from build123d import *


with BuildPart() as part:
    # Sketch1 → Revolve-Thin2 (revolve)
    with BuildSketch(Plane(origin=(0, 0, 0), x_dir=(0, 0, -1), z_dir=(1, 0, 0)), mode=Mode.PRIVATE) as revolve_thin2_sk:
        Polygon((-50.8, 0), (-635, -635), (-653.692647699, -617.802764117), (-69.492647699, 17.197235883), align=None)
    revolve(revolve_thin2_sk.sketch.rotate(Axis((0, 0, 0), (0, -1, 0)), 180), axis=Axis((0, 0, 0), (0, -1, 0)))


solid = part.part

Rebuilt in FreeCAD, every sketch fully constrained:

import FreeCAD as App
import Part
import Sketcher
Q = App.Units.Quantity


def add_polygon(sketch, points):
    """Adds a closed chain of lines whose ends are joined by coincident constraints."""
    first, n = sketch.GeometryCount, len(points)
    for a, b in zip(points, points[1:] + points[:1]):
        sketch.addGeometry(Part.LineSegment(App.Vector(*a, 0), App.Vector(*b, 0)), False)
    for i in range(n):
        sketch.addConstraint(Sketcher.Constraint("Coincident", first + i, 2, first + (i + 1) % n, 1))

doc = App.newDocument("Part")
body = doc.addObject("PartDesign::Body", "Body")

sketch1 = doc.addObject("Sketcher::SketchObject", "Sketch")
body.addObject(sketch1)
sketch1.AttachmentSupport = (doc.YZ_Plane, [""])
sketch1.MapMode = "FlatFace"
add_polygon(sketch1, [(-635, 635), (0, 50.8), (17.197236, 69.492648), (-617.802764, 653.692648)])
sketch1.addConstraint([
    Sketcher.Constraint("PointOnObject", 0, 2, -2),
    Sketcher.Constraint("Perpendicular", 0, 1),
    Sketcher.Constraint("Perpendicular", 1, 2),
    Sketcher.Constraint("Perpendicular", 2, 3),
    Sketcher.Constraint("Distance", 1, Q("1 in")),
    Sketcher.Constraint("DistanceY", -1, 1, 0, 2, Q("2 in")),
    Sketcher.Constraint("DistanceX", 3, 2, -1, 1, Q("25 in")),
    Sketcher.Constraint("DistanceY", -1, 1, 3, 2, Q("25 in")),
])
revolution = doc.addObject("PartDesign::Revolution", "Revolution")
body.addObject(revolution)
revolution.Profile = sketch1
revolution.ReferenceAxis = (sketch1, ["H_Axis"])
revolution.Angle = 360

doc.recompute()
